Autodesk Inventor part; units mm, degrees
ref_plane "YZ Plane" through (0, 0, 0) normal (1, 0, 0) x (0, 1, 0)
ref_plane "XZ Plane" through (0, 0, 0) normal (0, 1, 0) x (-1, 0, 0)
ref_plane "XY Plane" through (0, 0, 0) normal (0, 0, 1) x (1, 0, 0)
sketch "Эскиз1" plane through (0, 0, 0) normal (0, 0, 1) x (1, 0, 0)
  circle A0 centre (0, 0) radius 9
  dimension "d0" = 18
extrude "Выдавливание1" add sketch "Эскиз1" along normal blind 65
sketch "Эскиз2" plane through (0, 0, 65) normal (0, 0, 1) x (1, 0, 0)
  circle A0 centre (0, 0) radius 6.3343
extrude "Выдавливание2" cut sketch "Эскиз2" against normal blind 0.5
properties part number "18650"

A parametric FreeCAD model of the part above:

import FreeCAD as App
import Part
import Sketcher

doc = App.newDocument("Part")
body = doc.addObject("PartDesign::Body", "Body")

# Sketch on XY plane
sketch1 = body.newObject("Sketcher::SketchObject", "Sketch")
sketch1.AttachmentSupport = (doc.getObject("XY_Plane"), [""])
sketch1.MapMode = "FlatFace"
sketch1.addGeometry(Part.Circle(App.Vector(0, 0, 0), App.Vector(0, 0, 1), 9), False)
sketch1.addConstraint(Sketcher.Constraint("Coincident", 0, 3, -1, 1))
sketch1.addConstraint(Sketcher.Constraint("Diameter", 0, 18.0))
pad1 = body.newObject("PartDesign::Pad", "Pad")
pad1.Profile = sketch1
pad1.Length = 65

# Sketch on XY plane
sketch2 = body.newObject("Sketcher::SketchObject", "Sketch001")
sketch2.AttachmentSupport = (doc.getObject("XY_Plane"), [""])
sketch2.MapMode = "FlatFace"
sketch2.AttachmentOffset = App.Placement(App.Vector(0, 0, 65), App.Rotation())
sketch2.addGeometry(Part.Circle(App.Vector(0, 0, 0), App.Vector(0, 0, 1), 6), False)
sketch2.addConstraint(Sketcher.Constraint("Coincident", 0, 3, -1, 1))
sketch2.addConstraint(Sketcher.Constraint("Diameter", 0, 12.6686))
pocket1 = body.newObject("PartDesign::Pocket", "Pocket")
pocket1.Profile = sketch2
pocket1.Length = 0.5

doc.recompute()
